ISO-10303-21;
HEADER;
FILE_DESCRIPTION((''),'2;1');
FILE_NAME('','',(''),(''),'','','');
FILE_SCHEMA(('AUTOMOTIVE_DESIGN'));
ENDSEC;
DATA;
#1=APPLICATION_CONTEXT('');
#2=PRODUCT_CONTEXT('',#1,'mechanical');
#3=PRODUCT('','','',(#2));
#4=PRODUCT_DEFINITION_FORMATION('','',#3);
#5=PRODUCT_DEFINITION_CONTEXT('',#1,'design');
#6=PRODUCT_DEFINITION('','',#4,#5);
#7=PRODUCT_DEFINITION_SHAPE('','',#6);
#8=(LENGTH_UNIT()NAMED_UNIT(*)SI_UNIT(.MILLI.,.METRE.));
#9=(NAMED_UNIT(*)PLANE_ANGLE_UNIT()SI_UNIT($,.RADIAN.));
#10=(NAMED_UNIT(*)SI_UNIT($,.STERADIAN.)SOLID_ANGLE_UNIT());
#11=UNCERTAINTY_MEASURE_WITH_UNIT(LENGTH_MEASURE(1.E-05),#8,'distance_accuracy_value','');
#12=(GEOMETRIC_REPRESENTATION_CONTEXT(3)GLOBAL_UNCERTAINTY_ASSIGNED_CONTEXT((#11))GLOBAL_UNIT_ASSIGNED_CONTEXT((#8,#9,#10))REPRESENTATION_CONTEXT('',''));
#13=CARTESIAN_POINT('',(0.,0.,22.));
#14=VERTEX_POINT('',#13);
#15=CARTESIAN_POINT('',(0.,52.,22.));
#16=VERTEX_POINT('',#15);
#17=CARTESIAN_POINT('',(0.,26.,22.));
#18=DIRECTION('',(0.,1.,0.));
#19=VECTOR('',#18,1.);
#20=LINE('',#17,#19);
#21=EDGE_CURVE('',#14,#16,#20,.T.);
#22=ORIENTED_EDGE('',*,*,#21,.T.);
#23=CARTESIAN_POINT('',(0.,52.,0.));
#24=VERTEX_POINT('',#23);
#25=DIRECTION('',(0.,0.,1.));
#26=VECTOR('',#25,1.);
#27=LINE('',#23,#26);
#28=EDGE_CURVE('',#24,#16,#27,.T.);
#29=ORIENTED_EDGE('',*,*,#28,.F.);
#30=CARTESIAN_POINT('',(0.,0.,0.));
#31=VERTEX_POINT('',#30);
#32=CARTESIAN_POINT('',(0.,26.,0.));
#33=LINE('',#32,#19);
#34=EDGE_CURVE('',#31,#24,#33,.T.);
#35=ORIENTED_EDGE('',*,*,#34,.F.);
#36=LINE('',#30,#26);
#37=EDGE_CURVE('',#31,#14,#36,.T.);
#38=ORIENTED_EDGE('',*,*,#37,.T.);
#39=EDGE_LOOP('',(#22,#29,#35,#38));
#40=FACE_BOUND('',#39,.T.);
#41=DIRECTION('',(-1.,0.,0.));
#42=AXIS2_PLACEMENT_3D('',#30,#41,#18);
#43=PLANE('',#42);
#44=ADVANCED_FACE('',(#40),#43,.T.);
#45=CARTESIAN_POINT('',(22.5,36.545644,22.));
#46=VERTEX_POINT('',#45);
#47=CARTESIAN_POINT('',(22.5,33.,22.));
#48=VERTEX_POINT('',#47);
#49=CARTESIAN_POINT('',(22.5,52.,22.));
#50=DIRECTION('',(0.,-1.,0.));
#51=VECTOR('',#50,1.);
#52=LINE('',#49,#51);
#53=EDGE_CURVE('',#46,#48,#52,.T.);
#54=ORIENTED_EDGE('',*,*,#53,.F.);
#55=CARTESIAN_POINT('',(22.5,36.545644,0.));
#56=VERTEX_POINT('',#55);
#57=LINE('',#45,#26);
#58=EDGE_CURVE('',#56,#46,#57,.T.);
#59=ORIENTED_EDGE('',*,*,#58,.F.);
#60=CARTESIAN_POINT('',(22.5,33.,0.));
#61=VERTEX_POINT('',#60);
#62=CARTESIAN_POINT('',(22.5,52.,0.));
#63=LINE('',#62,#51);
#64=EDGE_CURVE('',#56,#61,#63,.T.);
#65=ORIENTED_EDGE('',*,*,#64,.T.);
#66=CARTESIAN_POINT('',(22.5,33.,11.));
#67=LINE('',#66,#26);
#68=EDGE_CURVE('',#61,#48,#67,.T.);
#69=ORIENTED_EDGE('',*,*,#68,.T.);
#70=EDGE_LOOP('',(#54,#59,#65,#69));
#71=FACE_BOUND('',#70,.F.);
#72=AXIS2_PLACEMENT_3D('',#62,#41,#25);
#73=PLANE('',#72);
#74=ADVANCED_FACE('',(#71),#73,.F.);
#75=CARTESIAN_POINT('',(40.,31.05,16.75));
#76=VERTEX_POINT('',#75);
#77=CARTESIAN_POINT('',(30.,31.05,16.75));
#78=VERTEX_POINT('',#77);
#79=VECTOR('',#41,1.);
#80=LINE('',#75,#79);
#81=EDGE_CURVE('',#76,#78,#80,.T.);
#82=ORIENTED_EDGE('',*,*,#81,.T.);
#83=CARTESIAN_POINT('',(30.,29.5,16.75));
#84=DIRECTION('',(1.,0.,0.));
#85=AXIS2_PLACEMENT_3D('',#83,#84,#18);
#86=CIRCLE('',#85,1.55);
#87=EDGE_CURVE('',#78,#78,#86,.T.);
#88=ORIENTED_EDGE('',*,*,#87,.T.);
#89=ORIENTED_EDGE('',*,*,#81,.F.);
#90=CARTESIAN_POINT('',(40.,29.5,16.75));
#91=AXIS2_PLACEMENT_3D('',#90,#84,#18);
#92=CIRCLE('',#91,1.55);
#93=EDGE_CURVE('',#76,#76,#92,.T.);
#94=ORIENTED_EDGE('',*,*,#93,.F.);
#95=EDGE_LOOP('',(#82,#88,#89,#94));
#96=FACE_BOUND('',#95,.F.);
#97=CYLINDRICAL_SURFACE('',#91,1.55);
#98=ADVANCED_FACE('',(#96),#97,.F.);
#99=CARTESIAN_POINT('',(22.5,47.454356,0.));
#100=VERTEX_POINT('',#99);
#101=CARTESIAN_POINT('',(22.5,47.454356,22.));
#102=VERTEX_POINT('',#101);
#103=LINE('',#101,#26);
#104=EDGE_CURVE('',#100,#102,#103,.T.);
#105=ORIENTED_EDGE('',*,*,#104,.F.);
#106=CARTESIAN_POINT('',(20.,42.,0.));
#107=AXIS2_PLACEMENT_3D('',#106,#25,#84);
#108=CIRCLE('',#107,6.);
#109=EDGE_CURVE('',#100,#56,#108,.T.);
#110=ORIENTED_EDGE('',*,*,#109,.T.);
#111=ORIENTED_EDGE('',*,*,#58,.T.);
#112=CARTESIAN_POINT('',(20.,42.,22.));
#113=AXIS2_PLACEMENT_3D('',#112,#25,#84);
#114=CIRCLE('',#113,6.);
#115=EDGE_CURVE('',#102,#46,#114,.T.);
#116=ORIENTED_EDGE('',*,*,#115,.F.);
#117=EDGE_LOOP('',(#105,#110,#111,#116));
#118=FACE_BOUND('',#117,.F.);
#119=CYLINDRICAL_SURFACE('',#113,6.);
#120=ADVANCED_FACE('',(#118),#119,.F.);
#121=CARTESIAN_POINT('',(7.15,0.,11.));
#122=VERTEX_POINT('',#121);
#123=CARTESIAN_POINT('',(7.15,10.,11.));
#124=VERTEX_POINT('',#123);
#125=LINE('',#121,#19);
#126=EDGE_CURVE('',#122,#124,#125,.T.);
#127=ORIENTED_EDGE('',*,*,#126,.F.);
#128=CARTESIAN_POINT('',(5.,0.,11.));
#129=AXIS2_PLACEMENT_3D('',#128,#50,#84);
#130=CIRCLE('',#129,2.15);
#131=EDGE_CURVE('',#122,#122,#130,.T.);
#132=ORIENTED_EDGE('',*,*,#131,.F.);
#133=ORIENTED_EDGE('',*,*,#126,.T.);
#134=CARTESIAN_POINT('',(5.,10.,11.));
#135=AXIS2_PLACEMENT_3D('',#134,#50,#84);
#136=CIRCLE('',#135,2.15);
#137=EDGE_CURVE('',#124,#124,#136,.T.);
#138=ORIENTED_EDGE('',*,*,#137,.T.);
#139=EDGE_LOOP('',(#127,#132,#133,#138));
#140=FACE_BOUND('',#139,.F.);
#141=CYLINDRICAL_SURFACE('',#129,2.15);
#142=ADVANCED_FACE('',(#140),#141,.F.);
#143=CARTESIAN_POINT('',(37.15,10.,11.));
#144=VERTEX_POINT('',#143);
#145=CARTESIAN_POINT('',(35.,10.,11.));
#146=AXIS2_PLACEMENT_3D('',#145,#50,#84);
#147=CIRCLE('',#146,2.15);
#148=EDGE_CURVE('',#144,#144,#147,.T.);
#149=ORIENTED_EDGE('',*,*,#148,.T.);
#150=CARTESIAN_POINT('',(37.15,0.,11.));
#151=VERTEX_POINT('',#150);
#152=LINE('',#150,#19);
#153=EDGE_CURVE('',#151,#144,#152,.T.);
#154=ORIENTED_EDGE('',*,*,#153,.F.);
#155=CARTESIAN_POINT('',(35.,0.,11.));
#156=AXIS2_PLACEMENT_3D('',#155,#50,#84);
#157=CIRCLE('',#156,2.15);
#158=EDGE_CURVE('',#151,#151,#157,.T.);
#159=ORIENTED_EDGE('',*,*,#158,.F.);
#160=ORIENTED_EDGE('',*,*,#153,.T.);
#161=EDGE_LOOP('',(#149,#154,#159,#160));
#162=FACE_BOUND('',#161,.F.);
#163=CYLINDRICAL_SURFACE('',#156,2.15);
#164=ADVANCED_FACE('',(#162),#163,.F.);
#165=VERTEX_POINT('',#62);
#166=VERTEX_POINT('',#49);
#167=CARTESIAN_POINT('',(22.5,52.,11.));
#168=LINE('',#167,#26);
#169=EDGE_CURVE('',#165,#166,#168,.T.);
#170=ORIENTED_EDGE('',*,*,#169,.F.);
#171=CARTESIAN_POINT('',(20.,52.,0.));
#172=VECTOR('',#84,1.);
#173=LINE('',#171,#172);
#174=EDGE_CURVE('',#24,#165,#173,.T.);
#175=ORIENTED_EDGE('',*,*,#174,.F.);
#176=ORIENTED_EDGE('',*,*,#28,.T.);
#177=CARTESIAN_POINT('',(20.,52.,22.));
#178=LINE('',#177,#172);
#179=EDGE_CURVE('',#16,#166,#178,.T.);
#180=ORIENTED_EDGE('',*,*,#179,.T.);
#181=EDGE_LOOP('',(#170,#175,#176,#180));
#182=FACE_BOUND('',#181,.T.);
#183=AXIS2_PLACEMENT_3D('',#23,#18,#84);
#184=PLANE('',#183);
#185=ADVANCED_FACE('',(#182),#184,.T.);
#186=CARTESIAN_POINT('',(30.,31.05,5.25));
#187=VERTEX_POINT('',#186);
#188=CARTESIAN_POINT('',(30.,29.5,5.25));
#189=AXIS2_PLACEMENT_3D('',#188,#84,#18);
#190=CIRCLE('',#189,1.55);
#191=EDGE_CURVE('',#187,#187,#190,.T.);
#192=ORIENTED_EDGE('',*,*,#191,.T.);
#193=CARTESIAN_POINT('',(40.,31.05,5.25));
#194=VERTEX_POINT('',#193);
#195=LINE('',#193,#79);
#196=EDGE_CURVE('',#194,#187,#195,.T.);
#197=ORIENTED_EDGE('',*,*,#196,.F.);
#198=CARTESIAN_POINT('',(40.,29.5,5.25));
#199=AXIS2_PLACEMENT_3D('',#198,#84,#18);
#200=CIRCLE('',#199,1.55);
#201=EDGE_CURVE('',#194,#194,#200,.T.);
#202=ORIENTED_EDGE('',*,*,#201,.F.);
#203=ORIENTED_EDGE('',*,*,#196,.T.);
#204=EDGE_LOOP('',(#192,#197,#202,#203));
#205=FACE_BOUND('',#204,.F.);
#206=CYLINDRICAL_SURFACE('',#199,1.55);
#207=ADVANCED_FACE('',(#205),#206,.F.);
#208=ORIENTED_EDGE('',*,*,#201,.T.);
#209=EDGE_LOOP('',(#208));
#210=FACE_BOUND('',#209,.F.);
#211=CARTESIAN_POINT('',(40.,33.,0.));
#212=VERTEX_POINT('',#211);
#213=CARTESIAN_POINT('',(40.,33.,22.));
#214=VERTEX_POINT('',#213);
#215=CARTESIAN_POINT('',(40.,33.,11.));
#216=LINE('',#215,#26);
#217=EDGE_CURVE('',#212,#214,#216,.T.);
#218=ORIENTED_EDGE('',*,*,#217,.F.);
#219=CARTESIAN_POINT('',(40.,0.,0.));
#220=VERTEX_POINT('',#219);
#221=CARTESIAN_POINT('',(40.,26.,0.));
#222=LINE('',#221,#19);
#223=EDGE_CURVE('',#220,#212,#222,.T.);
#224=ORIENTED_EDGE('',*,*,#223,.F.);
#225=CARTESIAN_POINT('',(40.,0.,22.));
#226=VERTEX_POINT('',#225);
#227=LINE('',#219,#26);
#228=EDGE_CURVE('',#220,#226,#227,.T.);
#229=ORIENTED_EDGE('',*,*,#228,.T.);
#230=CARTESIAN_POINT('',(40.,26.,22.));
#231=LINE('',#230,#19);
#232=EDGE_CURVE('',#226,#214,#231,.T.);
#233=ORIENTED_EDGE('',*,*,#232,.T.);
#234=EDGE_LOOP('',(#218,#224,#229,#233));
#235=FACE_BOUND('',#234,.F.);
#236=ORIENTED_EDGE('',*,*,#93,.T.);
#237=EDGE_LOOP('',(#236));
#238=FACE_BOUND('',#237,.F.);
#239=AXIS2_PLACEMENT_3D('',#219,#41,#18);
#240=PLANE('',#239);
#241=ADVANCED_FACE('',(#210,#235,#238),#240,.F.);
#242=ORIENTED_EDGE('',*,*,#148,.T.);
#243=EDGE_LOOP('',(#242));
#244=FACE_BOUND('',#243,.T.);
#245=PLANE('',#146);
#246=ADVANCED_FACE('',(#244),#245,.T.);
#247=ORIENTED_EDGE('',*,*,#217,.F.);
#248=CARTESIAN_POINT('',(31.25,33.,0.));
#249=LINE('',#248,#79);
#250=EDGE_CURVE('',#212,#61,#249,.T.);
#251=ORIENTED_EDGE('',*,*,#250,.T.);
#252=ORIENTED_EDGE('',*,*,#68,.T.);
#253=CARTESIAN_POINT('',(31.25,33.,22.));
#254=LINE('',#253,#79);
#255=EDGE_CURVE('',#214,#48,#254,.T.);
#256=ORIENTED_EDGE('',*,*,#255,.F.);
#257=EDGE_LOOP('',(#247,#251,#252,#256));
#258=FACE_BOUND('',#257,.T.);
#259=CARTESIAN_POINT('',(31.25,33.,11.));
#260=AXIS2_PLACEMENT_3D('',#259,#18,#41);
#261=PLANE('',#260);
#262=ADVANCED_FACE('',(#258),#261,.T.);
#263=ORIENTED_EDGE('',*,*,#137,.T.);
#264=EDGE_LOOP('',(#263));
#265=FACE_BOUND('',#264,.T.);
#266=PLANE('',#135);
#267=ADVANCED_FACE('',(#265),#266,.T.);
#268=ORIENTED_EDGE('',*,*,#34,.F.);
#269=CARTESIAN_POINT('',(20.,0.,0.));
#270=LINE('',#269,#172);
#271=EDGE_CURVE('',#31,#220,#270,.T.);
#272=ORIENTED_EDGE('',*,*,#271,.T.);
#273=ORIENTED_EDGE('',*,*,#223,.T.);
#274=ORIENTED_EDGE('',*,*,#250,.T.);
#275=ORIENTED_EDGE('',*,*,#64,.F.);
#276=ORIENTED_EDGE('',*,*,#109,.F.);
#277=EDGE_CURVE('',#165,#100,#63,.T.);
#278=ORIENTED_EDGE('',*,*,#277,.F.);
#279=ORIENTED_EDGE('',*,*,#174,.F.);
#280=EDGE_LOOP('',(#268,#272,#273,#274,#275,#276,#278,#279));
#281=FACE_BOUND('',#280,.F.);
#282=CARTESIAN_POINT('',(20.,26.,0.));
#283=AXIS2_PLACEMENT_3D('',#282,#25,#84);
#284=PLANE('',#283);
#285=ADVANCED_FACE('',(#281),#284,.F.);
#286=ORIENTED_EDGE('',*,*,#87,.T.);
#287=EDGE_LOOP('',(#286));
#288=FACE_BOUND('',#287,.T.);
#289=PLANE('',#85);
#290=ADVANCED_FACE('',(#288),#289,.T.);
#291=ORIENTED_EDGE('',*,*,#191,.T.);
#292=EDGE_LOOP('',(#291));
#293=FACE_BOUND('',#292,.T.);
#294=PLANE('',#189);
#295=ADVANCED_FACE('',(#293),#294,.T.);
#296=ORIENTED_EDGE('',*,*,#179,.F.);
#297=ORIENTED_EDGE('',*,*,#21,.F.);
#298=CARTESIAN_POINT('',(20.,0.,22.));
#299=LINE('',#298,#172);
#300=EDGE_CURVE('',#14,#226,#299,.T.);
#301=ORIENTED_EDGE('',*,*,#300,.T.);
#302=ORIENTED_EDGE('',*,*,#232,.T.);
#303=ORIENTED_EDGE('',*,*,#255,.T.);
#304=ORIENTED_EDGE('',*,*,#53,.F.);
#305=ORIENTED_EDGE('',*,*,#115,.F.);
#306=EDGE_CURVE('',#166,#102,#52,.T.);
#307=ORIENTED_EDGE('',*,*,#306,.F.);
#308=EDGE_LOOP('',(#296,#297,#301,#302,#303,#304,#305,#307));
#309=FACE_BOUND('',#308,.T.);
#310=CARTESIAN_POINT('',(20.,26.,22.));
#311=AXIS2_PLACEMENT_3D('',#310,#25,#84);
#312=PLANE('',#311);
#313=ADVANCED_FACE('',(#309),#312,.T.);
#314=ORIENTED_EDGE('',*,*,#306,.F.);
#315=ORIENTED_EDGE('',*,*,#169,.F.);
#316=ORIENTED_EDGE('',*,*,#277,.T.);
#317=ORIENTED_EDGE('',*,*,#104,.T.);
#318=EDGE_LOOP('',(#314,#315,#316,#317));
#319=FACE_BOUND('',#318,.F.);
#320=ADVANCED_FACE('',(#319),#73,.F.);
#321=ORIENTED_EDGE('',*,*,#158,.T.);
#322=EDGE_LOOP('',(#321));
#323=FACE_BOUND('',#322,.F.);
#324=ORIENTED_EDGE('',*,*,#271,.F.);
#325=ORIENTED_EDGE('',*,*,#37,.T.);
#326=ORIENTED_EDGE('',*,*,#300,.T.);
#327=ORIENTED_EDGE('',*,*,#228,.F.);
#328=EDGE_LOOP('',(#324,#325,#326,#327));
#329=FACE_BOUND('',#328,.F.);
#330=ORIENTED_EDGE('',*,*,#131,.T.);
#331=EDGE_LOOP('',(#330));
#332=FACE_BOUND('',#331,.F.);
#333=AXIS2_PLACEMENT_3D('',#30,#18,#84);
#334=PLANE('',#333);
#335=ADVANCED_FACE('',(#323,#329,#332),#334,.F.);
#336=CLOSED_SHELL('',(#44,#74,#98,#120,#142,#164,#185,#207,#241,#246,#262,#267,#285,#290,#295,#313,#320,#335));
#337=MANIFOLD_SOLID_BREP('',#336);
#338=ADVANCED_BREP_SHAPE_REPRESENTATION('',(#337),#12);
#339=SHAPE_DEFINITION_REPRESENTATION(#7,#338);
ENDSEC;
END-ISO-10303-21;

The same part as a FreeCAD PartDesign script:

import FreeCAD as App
import Part
import Sketcher
from FreeCAD import Vector

doc = App.newDocument("Part")
body = doc.addObject("PartDesign::Body", "Body")

# Sketch on XY plane
sketch1 = doc.addObject("Sketcher::SketchObject", "Sketch")
body.addObject(sketch1)
sketch1.AttachmentSupport = (doc.XY_Plane, [""])
sketch1.MapMode = "FlatFace"
sketch1.addGeometry([
    Part.LineSegment(Vector(0, 52, 0), Vector(0, 0, 0)),
    Part.LineSegment(Vector(0, 0, 0), Vector(40, 0, 0)),
    Part.LineSegment(Vector(40, 0, 0), Vector(40, 52, 0)),
    Part.LineSegment(Vector(40, 52, 0), Vector(0, 52, 0)),
], False)
sketch1.addConstraint([
    Sketcher.Constraint("Coincident", 0, 2, 1, 1),
    Sketcher.Constraint("Coincident", 1, 2, 2, 1),
    Sketcher.Constraint("Coincident", 2, 2, 3, 1),
    Sketcher.Constraint("Coincident", 3, 2, 0, 1),
    Sketcher.Constraint("Vertical", 0),
    Sketcher.Constraint("Horizontal", 1),
    Sketcher.Constraint("Vertical", 2),
    Sketcher.Constraint("Horizontal", 3),
    Sketcher.Constraint("Coincident", 0, 2, -1, 1),
    Sketcher.Constraint("DistanceX", 1, 1, 1, 2, 40.0),
    Sketcher.Constraint("DistanceY", 0, 2, 0, 1, 52.0),
])
pad1 = doc.addObject("PartDesign::Pad", "Pad")
body.addObject(pad1)
pad1.Profile = sketch1
pad1.Length = 22

# Sketch on XY plane
sketch2 = doc.addObject("Sketcher::SketchObject", "Sketch001")
body.addObject(sketch2)
sketch2.AttachmentSupport = (doc.XY_Plane, [""])
sketch2.MapMode = "FlatFace"
sketch2.AttachmentOffset = App.Placement(Vector(0, 0, 22), App.Rotation())
sketch2.addGeometry(Part.Circle(Vector(20, 42, 0), Vector(0, 0, 1), 6), False)
sketch2.addConstraint([
    Sketcher.Constraint("Diameter", 0, 12.0),
    Sketcher.Constraint("DistanceX", -1, 1, 0, 3, 20.0),
    Sketcher.Constraint("DistanceY", -1, 1, 0, 3, 42.0),
])
pocket1 = doc.addObject("PartDesign::Pocket", "Pocket")
body.addObject(pocket1)
pocket1.Profile = sketch2
pocket1.Length = 25

# Sketch on XZ plane
sketch3 = doc.addObject("Sketcher::SketchObject", "Sketch002")
body.addObject(sketch3)
sketch3.AttachmentSupport = (doc.XZ_Plane, [""])
sketch3.MapMode = "FlatFace"
sketch3.addGeometry([
    Part.Circle(Vector(5, 11, 0), Vector(0, 0, 1), 2.15),
    Part.Circle(Vector(35, 11, 0), Vector(0, 0, 1), 2.15),
], False)
sketch3.addConstraint([
    Sketcher.Constraint("Equal", 0, 1),
    Sketcher.Constraint("Horizontal", 0, 3, 1, 3),
    Sketcher.Constraint("Diameter", 0, 4.3),
    Sketcher.Constraint("DistanceX", -1, 1, 0, 3, 5.0),
    Sketcher.Constraint("DistanceY", -1, 1, 0, 3, 11.0),
    Sketcher.Constraint("DistanceX", -1, 1, 1, 3, 35.0),
])
pocket2 = doc.addObject("PartDesign::Pocket", "Pocket001")
body.addObject(pocket2)
pocket2.Profile = sketch3
pocket2.Length = 10

# Sketch on XZ plane
sketch4 = doc.addObject("Sketcher::SketchObject", "Sketch003")
body.addObject(sketch4)
sketch4.AttachmentSupport = (doc.XZ_Plane, [""])
sketch4.MapMode = "FlatFace"
sketch4.AttachmentOffset = App.Placement(Vector(0, 0, -52), App.Rotation())
sketch4.addGeometry([
    Part.LineSegment(Vector(40, 22, 0), Vector(40, 0, 0)),
    Part.LineSegment(Vector(40, 0, 0), Vector(22.5, 0, 0)),
    Part.LineSegment(Vector(22.5, 0, 0), Vector(22.5, 22, 0)),
    Part.LineSegment(Vector(22.5, 22, 0), Vector(40, 22, 0)),
], False)
sketch4.addConstraint([
    Sketcher.Constraint("Coincident", 0, 2, 1, 1),
    Sketcher.Constraint("Coincident", 1, 2, 2, 1),
    Sketcher.Constraint("Coincident", 2, 2, 3, 1),
    Sketcher.Constraint("Coincident", 3, 2, 0, 1),
    Sketcher.Constraint("Vertical", 0),
    Sketcher.Constraint("Horizontal", 1),
    Sketcher.Constraint("Vertical", 2),
    Sketcher.Constraint("Horizontal", 3),
    Sketcher.Constraint("PointOnObject", 0, 2, -1),
    Sketcher.Constraint("DistanceY", 0, 2, 0, 1, 22.0),
    Sketcher.Constraint("DistanceX", 1, 2, 1, 1, 17.5),
    Sketcher.Constraint("DistanceX", -1, 1, 0, 2, 40.0),
])
pocket3 = doc.addObject("PartDesign::Pocket", "Pocket002")
body.addObject(pocket3)
pocket3.Profile = sketch4
pocket3.Length = 19
pocket3.Reversed = True

# Sketch on YZ plane
sketch5 = doc.addObject("Sketcher::SketchObject", "Sketch004")
body.addObject(sketch5)
sketch5.AttachmentSupport = (doc.YZ_Plane, [""])
sketch5.MapMode = "FlatFace"
sketch5.AttachmentOffset = App.Placement(Vector(0, 0, 40), App.Rotation())
sketch5.addGeometry([
    Part.Circle(Vector(29.5, 16.75, 0), Vector(0, 0, 1), 1.55),
    Part.Circle(Vector(29.5, 5.25, 0), Vector(0, 0, 1), 1.55),
], False)
sketch5.addConstraint([
    Sketcher.Constraint("Equal", 0, 1),
    Sketcher.Constraint("Vertical", 0, 3, 1, 3),
    Sketcher.Constraint("Diameter", 0, 3.1),
    Sketcher.Constraint("DistanceX", -1, 1, 0, 3, 29.5),
    Sketcher.Constraint("DistanceY", 1, 3, 0, 3, 11.5),
    Sketcher.Constraint("DistanceY", -1, 1, 0, 3, 16.75),
])
pocket4 = doc.addObject("PartDesign::Pocket", "Pocket003")
body.addObject(pocket4)
pocket4.Profile = sketch5
pocket4.Length = 10

doc.recompute()
